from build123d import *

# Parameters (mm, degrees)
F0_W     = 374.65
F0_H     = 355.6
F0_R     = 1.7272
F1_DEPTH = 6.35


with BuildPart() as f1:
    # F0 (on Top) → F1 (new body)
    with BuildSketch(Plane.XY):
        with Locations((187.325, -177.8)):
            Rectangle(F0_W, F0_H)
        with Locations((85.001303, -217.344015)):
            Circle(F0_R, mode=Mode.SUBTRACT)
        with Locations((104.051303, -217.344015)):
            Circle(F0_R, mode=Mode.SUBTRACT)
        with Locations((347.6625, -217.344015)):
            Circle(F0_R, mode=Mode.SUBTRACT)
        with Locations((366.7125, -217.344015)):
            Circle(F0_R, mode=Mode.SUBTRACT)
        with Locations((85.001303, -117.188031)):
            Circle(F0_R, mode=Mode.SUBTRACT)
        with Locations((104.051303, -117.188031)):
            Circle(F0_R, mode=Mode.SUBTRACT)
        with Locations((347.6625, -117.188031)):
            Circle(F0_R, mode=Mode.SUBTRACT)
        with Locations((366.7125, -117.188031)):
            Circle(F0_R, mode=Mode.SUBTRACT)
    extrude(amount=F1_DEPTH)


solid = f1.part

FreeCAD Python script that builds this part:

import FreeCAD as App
import Part
import Sketcher
from FreeCAD import Vector
Q = App.Units.Quantity


def add_polygon(sketch, points):
    """Adds a closed chain of lines whose ends are joined by coincident constraints."""
    first, n = sketch.GeometryCount, len(points)
    for a, b in zip(points, points[1:] + points[:1]):
        sketch.addGeometry(Part.LineSegment(App.Vector(*a, 0), App.Vector(*b, 0)), False)
    for i in range(n):
        sketch.addConstraint(Sketcher.Constraint("Coincident", first + i, 2, first + (i + 1) % n, 1))

doc = App.newDocument("Part")
body = doc.addObject("PartDesign::Body", "Body")

sketch1 = body.newObject("Sketcher::SketchObject", "Sketch")
sketch1.AttachmentSupport = (doc.getObject("XY_Plane"), [""])
sketch1.MapMode = "FlatFace"
add_polygon(sketch1, [(0, 0), (0, -355.6), (374.6, -355.6), (374.6, 0)])
sketch1.addGeometry(Part.Circle(Vector(85, -217.3, 0), Vector(0, 0, 1), 1.7), False)
sketch1.addGeometry(Part.Circle(Vector(104.1, -217.3, 0), Vector(0, 0, 1), 1.7), False)
sketch1.addGeometry(Part.Circle(Vector(347.7, -217.3, 0), Vector(0, 0, 1), 1.7), False)
sketch1.addGeometry(Part.Circle(Vector(366.7, -217.3, 0), Vector(0, 0, 1), 1.7), False)
sketch1.addGeometry(Part.Circle(Vector(85, -117.2, 0), Vector(0, 0, 1), 1.7), False)
sketch1.addGeometry(Part.Circle(Vector(104.1, -117.2, 0), Vector(0, 0, 1), 1.7), False)
sketch1.addGeometry(Part.Circle(Vector(347.7, -117.2, 0), Vector(0, 0, 1), 1.7), False)
sketch1.addGeometry(Part.Circle(Vector(366.7, -117.2, 0), Vector(0, 0, 1), 1.7), False)
sketch1.addConstraint(Sketcher.Constraint("Vertical", 0))
sketch1.addConstraint(Sketcher.Constraint("Horizontal", 1))
sketch1.addConstraint(Sketcher.Constraint("Vertical", 2))
sketch1.addConstraint(Sketcher.Constraint("Horizontal", 3))
sketch1.addConstraint(Sketcher.Constraint("Coincident", 3, 2, -1, 1))
sketch1.addConstraint(Sketcher.Constraint("Equal", 4, 5))
sketch1.addConstraint(Sketcher.Constraint("Equal", 5, 6))
sketch1.addConstraint(Sketcher.Constraint("Equal", 6, 7))
sketch1.addConstraint(Sketcher.Constraint("Equal", 7, 8))
sketch1.addConstraint(Sketcher.Constraint("Equal", 8, 9))
sketch1.addConstraint(Sketcher.Constraint("Equal", 9, 10))
sketch1.addConstraint(Sketcher.Constraint("Equal", 10, 11))
sketch1.addConstraint(Sketcher.Constraint("Horizontal", 4, 3, 5, 3))
sketch1.addConstraint(Sketcher.Constraint("Horizontal", 5, 3, 6, 3))
sketch1.addConstraint(Sketcher.Constraint("Horizontal", 6, 3, 7, 3))
sketch1.addConstraint(Sketcher.Constraint("Horizontal", 8, 3, 9, 3))
sketch1.addConstraint(Sketcher.Constraint("Horizontal", 9, 3, 10, 3))
sketch1.addConstraint(Sketcher.Constraint("Horizontal", 10, 3, 11, 3))
sketch1.addConstraint(Sketcher.Constraint("Vertical", 4, 3, 8, 3))
sketch1.addConstraint(Sketcher.Constraint("Vertical", 5, 3, 9, 3))
sketch1.addConstraint(Sketcher.Constraint("Vertical", 6, 3, 10, 3))
sketch1.addConstraint(Sketcher.Constraint("Vertical", 7, 3, 11, 3))
sketch1.addConstraint(Sketcher.Constraint("DistanceY", 0, 2, 0, 1, Q("14 in")))
sketch1.addConstraint(Sketcher.Constraint("Diameter", 4, Q("0.136 in")))
sketch1.addConstraint(Sketcher.Constraint("DistanceX", 1, 1, 1, 2, Q("14.75 in")))
sketch1.addConstraint(Sketcher.Constraint("DistanceX", 4, 3, 5, 3, Q("0.75 in")))
sketch1.addConstraint(Sketcher.Constraint("DistanceX", 6, 3, 7, 3, Q("0.75 in")))
sketch1.addConstraint(Sketcher.Constraint("DistanceX", -1, 1, 6, 3, Q("13.6875 in")))
sketch1.addConstraint(Sketcher.Constraint("DistanceY", 8, 3, -1, 1, 117.188031))
sketch1.addConstraint(Sketcher.Constraint("DistanceX", -1, 1, 4, 3, 85.001303))
sketch1.addConstraint(Sketcher.Constraint("DistanceY", 4, 3, -1, 1, 217.344015))
pad1 = body.newObject("PartDesign::Pad", "Pad")
pad1.Profile = sketch1
pad1.Length = Q("0.25 in")

doc.recompute()
